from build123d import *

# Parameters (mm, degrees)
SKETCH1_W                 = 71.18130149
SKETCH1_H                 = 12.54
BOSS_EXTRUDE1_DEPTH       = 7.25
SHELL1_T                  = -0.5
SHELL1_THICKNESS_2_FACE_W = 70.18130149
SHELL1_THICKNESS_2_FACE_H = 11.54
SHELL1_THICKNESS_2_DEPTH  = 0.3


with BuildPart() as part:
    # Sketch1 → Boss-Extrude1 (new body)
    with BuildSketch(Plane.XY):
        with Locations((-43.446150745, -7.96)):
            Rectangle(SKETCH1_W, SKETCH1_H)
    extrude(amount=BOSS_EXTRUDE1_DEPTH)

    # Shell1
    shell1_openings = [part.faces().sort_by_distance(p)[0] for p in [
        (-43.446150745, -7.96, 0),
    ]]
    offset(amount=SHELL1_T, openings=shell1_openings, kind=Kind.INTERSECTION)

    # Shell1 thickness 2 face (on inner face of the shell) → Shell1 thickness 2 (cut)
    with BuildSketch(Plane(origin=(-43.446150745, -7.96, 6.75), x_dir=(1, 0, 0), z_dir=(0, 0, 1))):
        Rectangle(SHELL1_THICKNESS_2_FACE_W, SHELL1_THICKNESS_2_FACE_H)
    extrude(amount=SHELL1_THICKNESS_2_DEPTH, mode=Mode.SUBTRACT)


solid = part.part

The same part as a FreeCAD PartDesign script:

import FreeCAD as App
import Part
import Sketcher

V = App.Vector


def faces_at(feature, points):
    """Names of the faces that lie closest to the given points."""
    faces = feature.Shape.Faces
    near = lambda p: min(range(len(faces)), key=lambda i: faces[i].distToShape(Part.Vertex(*p))[0])
    return sorted({f"Face{near(p) + 1}" for p in points})

doc = App.newDocument("Part")
body = doc.addObject("PartDesign::Body", "Body")

sketch1 = doc.addObject("Sketcher::SketchObject", "Sketch")
body.addObject(sketch1)
sketch1.AttachmentSupport = (doc.XY_Plane, [""])
sketch1.MapMode = "FlatFace"
sketch1.addGeometry(Part.LineSegment(V(-79.036801, -1.69, 0), V(-79.036801, -14.23, 0)), False)
sketch1.addGeometry(Part.LineSegment(V(-79.036801, -14.23, 0), V(-7.8555, -14.23, 0)), False)
sketch1.addGeometry(Part.LineSegment(V(-7.8555, -14.23, 0), V(-7.8555, -1.69, 0)), False)
sketch1.addGeometry(Part.LineSegment(V(-7.8555, -1.69, 0), V(-79.036801, -1.69, 0)), False)
sketch1.addConstraint(Sketcher.Constraint("Coincident", 0, 2, 1, 1))
sketch1.addConstraint(Sketcher.Constraint("Coincident", 1, 2, 2, 1))
sketch1.addConstraint(Sketcher.Constraint("Coincident", 2, 2, 3, 1))
sketch1.addConstraint(Sketcher.Constraint("Coincident", 3, 2, 0, 1))
sketch1.addConstraint(Sketcher.Constraint("Vertical", 0))
sketch1.addConstraint(Sketcher.Constraint("Horizontal", 1))
sketch1.addConstraint(Sketcher.Constraint("Vertical", 2))
sketch1.addConstraint(Sketcher.Constraint("Horizontal", 3))
sketch1.addConstraint(Sketcher.Constraint("DistanceY", 0, 2, 0, 1, 12.54))
sketch1.addConstraint(Sketcher.Constraint("DistanceY", 0, 2, -1, 1, 14.23))
sketch1.addConstraint(Sketcher.Constraint("DistanceX", 1, 1, 1, 2, 71.181301))
sketch1.addConstraint(Sketcher.Constraint("DistanceX", 0, 2, -1, 1, 79.036801))
pad1 = doc.addObject("PartDesign::Pad", "Pad")
body.addObject(pad1)
pad1.Profile = sketch1
pad1.Length = 7.25
doc.recompute()

thickness = doc.addObject("PartDesign::Thickness", "Thickness")
body.addObject(thickness)
thickness.Base = (pad1, faces_at(pad1, [(-43.446, -7.96, 0)]))
thickness.Value = 0.5
thickness.Reversed = True
thickness.Join = "Intersection"

sketch2 = doc.addObject("Sketcher::SketchObject", "Sketch001")
body.addObject(sketch2)
sketch2.AttachmentSupport = (doc.XY_Plane, [""])
sketch2.MapMode = "FlatFace"
sketch2.AttachmentOffset = App.Placement(V(0, 0, 6.75), App.Rotation())
sketch2.addGeometry(Part.LineSegment(V(-78.536801, -2.19, 0), V(-78.536801, -13.73, 0)), False)
sketch2.addGeometry(Part.LineSegment(V(-78.536801, -13.73, 0), V(-8.3555, -13.73, 0)), False)
sketch2.addGeometry(Part.LineSegment(V(-8.3555, -13.73, 0), V(-8.3555, -2.19, 0)), False)
sketch2.addGeometry(Part.LineSegment(V(-8.3555, -2.19, 0), V(-78.536801, -2.19, 0)), False)
sketch2.addConstraint(Sketcher.Constraint("Coincident", 0, 2, 1, 1))
sketch2.addConstraint(Sketcher.Constraint("Coincident", 1, 2, 2, 1))
sketch2.addConstraint(Sketcher.Constraint("Coincident", 2, 2, 3, 1))
sketch2.addConstraint(Sketcher.Constraint("Coincident", 3, 2, 0, 1))
sketch2.addConstraint(Sketcher.Constraint("Vertical", 0))
sketch2.addConstraint(Sketcher.Constraint("Horizontal", 1))
sketch2.addConstraint(Sketcher.Constraint("Vertical", 2))
sketch2.addConstraint(Sketcher.Constraint("Horizontal", 3))
sketch2.addConstraint(Sketcher.Constraint("DistanceY", 0, 2, 0, 1, 11.54))
sketch2.addConstraint(Sketcher.Constraint("DistanceY", 0, 2, -1, 1, 13.73))
sketch2.addConstraint(Sketcher.Constraint("DistanceX", 1, 1, 1, 2, 70.181301))
sketch2.addConstraint(Sketcher.Constraint("DistanceX", 0, 2, -1, 1, 78.536801))
pocket1 = doc.addObject("PartDesign::Pocket", "Pocket")
body.addObject(pocket1)
pocket1.Profile = sketch2
pocket1.Length = 0.3
pocket1.Reversed = True

doc.recompute()
